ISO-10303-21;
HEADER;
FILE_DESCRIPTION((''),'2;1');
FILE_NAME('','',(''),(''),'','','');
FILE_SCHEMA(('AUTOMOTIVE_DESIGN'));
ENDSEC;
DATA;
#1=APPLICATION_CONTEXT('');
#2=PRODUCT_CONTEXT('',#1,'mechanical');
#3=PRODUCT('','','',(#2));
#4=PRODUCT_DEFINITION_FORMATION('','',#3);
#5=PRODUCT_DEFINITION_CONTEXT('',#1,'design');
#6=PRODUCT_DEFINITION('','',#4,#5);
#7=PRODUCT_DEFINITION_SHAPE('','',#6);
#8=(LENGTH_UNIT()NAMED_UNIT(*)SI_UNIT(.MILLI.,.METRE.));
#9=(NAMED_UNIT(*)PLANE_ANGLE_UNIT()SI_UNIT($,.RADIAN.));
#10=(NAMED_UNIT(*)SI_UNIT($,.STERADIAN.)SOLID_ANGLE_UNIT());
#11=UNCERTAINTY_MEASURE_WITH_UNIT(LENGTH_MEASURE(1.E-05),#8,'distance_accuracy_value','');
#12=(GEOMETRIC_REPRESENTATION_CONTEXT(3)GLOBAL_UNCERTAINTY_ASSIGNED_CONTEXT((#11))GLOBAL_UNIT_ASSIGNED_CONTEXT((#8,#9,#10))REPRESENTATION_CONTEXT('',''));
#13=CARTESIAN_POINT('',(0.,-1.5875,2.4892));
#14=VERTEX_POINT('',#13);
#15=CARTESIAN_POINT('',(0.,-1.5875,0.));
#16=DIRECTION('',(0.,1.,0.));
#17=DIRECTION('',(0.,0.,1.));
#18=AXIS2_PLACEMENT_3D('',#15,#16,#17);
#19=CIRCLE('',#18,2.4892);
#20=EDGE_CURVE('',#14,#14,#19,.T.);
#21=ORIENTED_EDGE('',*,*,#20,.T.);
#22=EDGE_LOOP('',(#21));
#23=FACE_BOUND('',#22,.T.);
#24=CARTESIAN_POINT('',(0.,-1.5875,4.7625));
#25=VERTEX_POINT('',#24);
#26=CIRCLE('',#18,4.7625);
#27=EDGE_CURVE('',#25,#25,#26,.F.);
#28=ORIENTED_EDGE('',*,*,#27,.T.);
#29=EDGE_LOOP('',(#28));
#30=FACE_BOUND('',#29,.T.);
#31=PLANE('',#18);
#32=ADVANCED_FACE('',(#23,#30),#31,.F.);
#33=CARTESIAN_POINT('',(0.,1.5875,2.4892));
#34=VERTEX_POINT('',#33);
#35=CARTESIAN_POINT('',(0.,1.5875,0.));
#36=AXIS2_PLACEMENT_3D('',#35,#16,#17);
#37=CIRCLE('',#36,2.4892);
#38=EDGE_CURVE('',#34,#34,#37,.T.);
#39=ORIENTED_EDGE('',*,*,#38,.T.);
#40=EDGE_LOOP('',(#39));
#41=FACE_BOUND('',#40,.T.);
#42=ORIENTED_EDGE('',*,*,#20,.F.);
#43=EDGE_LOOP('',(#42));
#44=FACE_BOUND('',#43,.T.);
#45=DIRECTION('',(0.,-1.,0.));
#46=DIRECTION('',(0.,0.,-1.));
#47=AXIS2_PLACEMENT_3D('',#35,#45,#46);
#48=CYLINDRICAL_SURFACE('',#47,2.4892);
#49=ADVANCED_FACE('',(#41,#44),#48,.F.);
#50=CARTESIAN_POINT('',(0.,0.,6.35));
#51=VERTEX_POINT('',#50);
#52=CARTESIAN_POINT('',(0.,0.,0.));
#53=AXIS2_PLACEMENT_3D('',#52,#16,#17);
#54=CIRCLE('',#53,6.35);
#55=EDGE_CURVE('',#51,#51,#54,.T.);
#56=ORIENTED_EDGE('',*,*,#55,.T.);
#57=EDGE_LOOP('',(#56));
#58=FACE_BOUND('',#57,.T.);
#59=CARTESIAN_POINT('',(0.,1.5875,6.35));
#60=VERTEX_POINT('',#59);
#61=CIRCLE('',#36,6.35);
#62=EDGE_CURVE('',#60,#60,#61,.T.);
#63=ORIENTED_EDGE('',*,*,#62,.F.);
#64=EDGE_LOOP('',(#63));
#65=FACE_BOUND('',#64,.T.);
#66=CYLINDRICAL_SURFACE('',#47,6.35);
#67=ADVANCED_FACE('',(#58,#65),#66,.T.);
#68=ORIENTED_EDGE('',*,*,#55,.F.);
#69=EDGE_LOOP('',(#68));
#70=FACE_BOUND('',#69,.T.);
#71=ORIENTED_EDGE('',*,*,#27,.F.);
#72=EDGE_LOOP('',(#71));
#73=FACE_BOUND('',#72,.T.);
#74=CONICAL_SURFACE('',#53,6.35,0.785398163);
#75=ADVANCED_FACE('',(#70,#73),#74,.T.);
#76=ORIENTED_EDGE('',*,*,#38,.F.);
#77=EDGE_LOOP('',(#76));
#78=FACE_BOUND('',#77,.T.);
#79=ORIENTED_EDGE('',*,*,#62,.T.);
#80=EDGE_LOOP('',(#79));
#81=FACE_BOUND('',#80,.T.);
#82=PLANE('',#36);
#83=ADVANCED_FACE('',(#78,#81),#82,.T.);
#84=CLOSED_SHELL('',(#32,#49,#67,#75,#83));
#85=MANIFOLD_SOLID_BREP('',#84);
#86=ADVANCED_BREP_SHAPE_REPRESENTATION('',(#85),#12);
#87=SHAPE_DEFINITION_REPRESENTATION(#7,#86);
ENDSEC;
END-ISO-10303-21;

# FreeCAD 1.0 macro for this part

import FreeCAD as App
import Part
import Sketcher

V = App.Vector
Q = App.Units.Quantity


def edges_at(feature, points):
    """Names of the edges that pass closest to the given points."""
    edges = feature.Shape.Edges
    near = lambda p: min(range(len(edges)), key=lambda i: edges[i].distToShape(Part.Vertex(*p))[0])
    return sorted({f"Edge{near(p) + 1}" for p in points})

doc = App.newDocument("Part")
body = doc.addObject("PartDesign::Body", "Body")

sketch1 = doc.addObject("Sketcher::SketchObject", "Sketch")
body.addObject(sketch1)
sketch1.AttachmentSupport = (doc.XZ_Plane, [""])
sketch1.MapMode = "FlatFace"
sketch1.addGeometry(Part.Circle(V(0, 0, 0), V(0, 0, 1), 6.3), False)
sketch1.addGeometry(Part.Circle(V(0, 0, 0), V(0, 0, 1), 2.5), False)
sketch1.addConstraint(Sketcher.Constraint("Coincident", 0, 3, -1, 1))
sketch1.addConstraint(Sketcher.Constraint("Coincident", 1, 3, -1, 1))
sketch1.addConstraint(Sketcher.Constraint("Diameter", 0, Q("0.5 in")))
sketch1.addConstraint(Sketcher.Constraint("Diameter", 1, Q("0.196 in")))
pad1 = doc.addObject("PartDesign::Pad", "Pad")
body.addObject(pad1)
pad1.Profile = sketch1
pad1.Length = Q("0.125 in")
pad1.Midplane = True
doc.recompute()

chamfer = doc.addObject("PartDesign::Chamfer", "Chamfer")
body.addObject(chamfer)
chamfer.Base = (pad1, edges_at(pad1, [(0, -1.587, -6.35)]))
chamfer.Size = Q("0.0625 in")

doc.recompute()
